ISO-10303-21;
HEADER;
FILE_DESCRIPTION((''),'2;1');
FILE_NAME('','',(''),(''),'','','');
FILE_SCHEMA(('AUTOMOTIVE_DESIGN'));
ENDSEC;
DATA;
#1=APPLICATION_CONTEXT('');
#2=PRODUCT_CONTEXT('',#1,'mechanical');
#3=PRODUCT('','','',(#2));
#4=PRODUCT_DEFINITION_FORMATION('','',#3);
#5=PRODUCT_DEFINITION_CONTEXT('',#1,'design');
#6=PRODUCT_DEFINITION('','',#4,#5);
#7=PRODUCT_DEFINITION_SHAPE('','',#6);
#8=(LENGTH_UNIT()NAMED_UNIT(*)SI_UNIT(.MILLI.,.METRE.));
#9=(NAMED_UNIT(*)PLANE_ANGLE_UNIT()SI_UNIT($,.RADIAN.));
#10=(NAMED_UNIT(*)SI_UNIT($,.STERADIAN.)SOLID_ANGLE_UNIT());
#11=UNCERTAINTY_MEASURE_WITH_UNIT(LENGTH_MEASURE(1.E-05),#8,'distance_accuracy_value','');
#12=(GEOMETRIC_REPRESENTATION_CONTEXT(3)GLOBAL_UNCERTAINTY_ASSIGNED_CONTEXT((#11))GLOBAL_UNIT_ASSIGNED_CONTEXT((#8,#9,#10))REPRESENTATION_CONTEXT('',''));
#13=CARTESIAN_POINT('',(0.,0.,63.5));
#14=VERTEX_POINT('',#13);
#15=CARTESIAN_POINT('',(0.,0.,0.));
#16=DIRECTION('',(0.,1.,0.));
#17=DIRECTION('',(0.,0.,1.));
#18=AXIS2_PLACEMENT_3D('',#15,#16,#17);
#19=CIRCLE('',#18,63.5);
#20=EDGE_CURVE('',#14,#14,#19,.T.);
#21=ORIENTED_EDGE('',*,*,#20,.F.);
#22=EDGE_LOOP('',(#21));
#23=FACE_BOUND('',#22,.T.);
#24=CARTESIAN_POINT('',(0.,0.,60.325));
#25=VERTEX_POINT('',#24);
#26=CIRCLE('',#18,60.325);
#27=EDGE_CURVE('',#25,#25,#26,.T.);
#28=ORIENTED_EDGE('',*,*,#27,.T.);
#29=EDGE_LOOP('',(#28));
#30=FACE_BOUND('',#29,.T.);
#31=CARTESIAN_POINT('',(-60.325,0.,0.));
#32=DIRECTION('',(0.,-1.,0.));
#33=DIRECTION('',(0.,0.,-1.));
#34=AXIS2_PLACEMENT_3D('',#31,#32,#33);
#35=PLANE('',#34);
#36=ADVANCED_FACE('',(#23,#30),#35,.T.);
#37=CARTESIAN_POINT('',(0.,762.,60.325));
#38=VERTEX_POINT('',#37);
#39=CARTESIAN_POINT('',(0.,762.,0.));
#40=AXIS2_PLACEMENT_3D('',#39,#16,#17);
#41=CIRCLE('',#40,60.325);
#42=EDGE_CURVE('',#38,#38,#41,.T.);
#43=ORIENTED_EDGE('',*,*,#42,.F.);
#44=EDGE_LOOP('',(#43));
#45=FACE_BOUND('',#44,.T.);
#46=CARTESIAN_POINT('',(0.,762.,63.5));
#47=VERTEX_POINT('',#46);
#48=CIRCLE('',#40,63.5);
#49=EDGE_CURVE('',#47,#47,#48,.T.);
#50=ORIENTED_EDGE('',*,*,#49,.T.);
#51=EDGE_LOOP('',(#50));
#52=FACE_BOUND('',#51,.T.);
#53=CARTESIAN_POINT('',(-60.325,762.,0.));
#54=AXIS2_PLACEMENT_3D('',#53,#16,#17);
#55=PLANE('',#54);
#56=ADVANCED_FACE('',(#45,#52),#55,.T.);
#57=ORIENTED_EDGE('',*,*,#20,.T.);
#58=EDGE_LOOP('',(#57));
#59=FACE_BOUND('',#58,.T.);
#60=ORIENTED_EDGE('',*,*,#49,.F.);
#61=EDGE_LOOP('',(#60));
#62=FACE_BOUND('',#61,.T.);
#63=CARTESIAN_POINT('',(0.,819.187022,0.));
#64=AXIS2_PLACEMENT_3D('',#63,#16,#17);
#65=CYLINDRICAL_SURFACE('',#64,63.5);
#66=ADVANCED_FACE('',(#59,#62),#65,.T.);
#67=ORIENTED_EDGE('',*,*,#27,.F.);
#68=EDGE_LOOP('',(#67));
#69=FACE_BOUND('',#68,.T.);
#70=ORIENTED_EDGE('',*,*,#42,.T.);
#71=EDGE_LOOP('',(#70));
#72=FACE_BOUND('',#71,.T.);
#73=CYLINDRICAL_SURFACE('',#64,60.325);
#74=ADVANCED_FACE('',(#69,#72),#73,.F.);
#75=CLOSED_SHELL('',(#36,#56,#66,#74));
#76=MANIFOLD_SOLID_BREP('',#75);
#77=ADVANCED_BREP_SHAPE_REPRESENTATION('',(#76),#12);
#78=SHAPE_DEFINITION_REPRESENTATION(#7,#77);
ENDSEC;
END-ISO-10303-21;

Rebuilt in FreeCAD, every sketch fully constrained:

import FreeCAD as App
import Part
import Sketcher
Q = App.Units.Quantity


def add_polygon(sketch, points):
    """Adds a closed chain of lines whose ends are joined by coincident constraints."""
    first, n = sketch.GeometryCount, len(points)
    for a, b in zip(points, points[1:] + points[:1]):
        sketch.addGeometry(Part.LineSegment(App.Vector(*a, 0), App.Vector(*b, 0)), False)
    for i in range(n):
        sketch.addConstraint(Sketcher.Constraint("Coincident", first + i, 2, first + (i + 1) % n, 1))

doc = App.newDocument("Part")
body = doc.addObject("PartDesign::Body", "Body")

sketch1 = body.newObject("Sketcher::SketchObject", "Sketch")
sketch1.AttachmentSupport = (doc.getObject("XY_Plane"), [""])
sketch1.MapMode = "FlatFace"
add_polygon(sketch1, [(-63.5, 762), (-63.5, 0), (-60.3, 0), (-60.3, 762)])
sketch1.addConstraint(Sketcher.Constraint("Vertical", 0))
sketch1.addConstraint(Sketcher.Constraint("Horizontal", 1))
sketch1.addConstraint(Sketcher.Constraint("Vertical", 2))
sketch1.addConstraint(Sketcher.Constraint("Horizontal", 3))
sketch1.addConstraint(Sketcher.Constraint("PointOnObject", 0, 2, -1))
sketch1.addConstraint(Sketcher.Constraint("DistanceY", 0, 2, 0, 1, Q("30 in")))
sketch1.addConstraint(Sketcher.Constraint("DistanceX", 0, 2, -1, 1, Q("2.5 in")))
sketch1.addConstraint(Sketcher.Constraint("DistanceX", 1, 1, 1, 2, Q("0.125 in")))
revolution = body.newObject("PartDesign::Revolution", "Revolution")
revolution.Profile = sketch1
revolution.ReferenceAxis = (sketch1, ["V_Axis"])
revolution.Angle = 360

doc.recompute()
